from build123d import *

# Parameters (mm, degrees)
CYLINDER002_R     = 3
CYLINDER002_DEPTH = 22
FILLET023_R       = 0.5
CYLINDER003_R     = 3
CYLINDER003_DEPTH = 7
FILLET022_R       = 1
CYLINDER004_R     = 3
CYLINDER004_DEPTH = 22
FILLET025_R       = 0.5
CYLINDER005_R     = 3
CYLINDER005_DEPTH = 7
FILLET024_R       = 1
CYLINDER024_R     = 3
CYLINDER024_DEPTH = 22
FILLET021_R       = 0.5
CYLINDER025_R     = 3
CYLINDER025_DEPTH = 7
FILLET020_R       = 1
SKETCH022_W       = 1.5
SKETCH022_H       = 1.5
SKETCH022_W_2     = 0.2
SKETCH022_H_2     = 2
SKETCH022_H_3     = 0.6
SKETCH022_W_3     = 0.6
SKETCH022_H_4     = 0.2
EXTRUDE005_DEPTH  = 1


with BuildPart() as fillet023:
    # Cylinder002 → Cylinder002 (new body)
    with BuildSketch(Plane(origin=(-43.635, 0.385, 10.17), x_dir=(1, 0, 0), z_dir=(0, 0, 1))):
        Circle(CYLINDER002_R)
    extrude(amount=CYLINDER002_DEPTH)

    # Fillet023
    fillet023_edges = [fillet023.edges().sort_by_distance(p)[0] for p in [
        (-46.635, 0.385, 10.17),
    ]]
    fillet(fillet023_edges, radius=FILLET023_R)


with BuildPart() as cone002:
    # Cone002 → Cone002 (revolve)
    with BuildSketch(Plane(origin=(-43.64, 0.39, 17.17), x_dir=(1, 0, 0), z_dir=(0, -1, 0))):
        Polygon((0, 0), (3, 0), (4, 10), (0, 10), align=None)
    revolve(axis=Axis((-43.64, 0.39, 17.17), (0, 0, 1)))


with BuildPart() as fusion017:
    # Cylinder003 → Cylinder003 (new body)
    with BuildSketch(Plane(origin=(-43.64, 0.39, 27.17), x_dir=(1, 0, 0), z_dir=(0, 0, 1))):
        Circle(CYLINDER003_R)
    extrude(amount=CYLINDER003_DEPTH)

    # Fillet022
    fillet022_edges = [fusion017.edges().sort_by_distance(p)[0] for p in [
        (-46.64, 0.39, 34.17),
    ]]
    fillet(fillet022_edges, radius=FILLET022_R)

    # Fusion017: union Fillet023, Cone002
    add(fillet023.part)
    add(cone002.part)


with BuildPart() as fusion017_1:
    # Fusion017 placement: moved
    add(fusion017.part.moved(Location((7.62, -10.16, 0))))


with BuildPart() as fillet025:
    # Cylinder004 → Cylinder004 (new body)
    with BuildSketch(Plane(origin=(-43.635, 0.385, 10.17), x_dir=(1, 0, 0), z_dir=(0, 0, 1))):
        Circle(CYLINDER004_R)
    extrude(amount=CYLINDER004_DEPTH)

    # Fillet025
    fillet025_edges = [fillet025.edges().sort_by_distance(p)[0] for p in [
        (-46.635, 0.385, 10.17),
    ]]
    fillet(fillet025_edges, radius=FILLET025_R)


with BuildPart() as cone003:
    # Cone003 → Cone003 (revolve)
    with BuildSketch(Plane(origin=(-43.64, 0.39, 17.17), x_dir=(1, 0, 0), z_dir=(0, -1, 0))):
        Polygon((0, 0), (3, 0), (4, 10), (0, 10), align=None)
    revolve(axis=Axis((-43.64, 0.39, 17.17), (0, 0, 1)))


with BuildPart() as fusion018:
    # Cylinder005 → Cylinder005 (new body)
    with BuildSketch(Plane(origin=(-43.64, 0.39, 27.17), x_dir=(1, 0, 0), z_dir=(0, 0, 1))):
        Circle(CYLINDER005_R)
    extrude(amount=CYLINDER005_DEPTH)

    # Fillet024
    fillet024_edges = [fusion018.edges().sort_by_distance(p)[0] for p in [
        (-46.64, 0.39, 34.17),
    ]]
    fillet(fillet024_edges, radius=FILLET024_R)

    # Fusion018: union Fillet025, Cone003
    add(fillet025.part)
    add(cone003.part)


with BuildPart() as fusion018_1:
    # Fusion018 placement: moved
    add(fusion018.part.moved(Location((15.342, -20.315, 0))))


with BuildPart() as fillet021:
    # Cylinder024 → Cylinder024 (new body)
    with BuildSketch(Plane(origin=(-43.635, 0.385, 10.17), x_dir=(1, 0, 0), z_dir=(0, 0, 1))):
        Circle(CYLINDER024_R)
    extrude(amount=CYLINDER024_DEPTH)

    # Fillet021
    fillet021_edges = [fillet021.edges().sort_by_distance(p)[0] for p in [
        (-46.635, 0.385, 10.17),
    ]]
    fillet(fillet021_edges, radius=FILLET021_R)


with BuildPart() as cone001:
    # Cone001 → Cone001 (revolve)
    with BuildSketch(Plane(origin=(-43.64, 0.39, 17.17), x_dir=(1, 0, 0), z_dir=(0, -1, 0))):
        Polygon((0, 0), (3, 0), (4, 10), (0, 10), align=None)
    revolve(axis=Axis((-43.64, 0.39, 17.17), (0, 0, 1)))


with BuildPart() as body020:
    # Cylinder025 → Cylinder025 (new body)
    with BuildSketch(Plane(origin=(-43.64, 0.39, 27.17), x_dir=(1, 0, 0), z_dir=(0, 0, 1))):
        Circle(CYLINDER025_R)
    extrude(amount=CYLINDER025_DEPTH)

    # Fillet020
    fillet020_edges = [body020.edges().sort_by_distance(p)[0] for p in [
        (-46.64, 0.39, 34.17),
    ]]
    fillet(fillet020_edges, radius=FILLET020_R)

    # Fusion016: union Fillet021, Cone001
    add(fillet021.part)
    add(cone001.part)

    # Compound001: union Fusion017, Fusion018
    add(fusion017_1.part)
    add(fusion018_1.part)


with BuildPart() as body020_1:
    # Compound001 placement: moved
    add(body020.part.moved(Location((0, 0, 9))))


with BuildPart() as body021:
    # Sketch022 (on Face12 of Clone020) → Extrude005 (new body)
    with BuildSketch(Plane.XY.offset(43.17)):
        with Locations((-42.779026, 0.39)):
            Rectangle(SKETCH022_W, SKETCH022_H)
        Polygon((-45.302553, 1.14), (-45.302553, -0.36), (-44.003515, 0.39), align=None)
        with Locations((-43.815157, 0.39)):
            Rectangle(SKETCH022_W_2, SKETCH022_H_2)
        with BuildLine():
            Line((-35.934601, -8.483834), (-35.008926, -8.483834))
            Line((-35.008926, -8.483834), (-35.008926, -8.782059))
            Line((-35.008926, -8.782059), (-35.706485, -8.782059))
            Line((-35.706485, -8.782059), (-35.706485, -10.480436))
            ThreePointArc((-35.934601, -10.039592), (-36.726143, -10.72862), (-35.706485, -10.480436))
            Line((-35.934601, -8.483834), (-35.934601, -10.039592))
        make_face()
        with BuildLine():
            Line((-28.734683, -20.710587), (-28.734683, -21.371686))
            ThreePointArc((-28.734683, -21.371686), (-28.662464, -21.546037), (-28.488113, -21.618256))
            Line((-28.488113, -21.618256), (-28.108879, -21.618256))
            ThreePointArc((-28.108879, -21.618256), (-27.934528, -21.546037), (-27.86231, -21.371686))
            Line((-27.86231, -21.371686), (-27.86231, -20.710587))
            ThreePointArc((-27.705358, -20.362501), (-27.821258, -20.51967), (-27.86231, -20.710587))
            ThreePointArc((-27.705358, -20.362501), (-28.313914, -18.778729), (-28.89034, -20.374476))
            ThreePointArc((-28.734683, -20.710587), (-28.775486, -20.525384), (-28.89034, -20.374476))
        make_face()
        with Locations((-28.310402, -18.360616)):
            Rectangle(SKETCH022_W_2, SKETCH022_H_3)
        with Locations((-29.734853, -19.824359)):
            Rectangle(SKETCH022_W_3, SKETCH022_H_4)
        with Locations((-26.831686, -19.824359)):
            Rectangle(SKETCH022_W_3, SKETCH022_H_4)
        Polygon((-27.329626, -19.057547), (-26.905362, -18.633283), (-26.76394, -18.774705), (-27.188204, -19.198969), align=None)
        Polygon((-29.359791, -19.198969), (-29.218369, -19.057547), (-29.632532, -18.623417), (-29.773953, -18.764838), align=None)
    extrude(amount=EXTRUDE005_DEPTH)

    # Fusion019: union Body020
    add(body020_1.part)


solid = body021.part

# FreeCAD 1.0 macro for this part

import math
import FreeCAD as App
import Part
import Sketcher
from FreeCAD import Vector
Q = App.Units.Quantity


def edges_at(feature, points):
    """Names of the edges that pass closest to the given points."""
    edges = feature.Shape.Edges
    near = lambda p: min(range(len(edges)), key=lambda i: edges[i].distToShape(Part.Vertex(*p))[0])
    return sorted({f"Edge{near(p) + 1}" for p in points})

doc = App.newDocument("Part")
body = doc.addObject("PartDesign::Body", "Body")

# Sketch on XY plane
sketch1 = body.newObject("Sketcher::SketchObject", "Sketch")
sketch1.AttachmentSupport = (doc.getObject("XY_Plane"), [""])
sketch1.MapMode = "FlatFace"
sketch1.AttachmentOffset = App.Placement(Vector(0, 0, 10.17), App.Rotation())
sketch1.addGeometry(Part.Circle(Vector(-43.6, 0.4, 0), Vector(0, 0, 1), 3), False)
sketch1.addConstraint(Sketcher.Constraint("Diameter", 0, 6.0))
sketch1.addConstraint(Sketcher.Constraint("DistanceX", 0, 3, -1, 1, 43.635))
sketch1.addConstraint(Sketcher.Constraint("DistanceY", -1, 1, 0, 3, 0.385))
pad1 = body.newObject("PartDesign::Pad", "Pad")
pad1.Profile = sketch1
pad1.Length = 22
doc.recompute()

fillet = body.newObject("PartDesign::Fillet", "Fillet")
fillet.Base = (pad1, edges_at(pad1, [(-46.635, 0.385, 10.17)]))
fillet.Radius = 0.5
body2 = doc.addObject("PartDesign::Body", "Body001")

# Sketch on XZ plane
sketch2 = body2.newObject("Sketcher::SketchObject", "Sketch001")
sketch2.AttachmentSupport = (doc.getObject("XZ_Plane001"), [""])
sketch2.MapMode = "FlatFace"
sketch2.AttachmentOffset = App.Placement(Vector(0, 0, -0.39), App.Rotation())
sketch2.addGeometry(Part.LineSegment(Vector(-43.6, 17.2, 0), Vector(-40.6, 17.2, 0)), False)
sketch2.addGeometry(Part.LineSegment(Vector(-40.6, 17.2, 0), Vector(-39.6, 27.2, 0)), False)
sketch2.addGeometry(Part.LineSegment(Vector(-39.6, 27.2, 0), Vector(-43.6, 27.2, 0)), False)
sketch2.addGeometry(Part.LineSegment(Vector(-43.6, 27.2, 0), Vector(-43.6, 17.2, 0)), False)
sketch2.addGeometry(Part.LineSegment(Vector(-43.6, 17.2, 0), Vector(-43.6, 27.2, 0)), True)  # axis
sketch2.addConstraint(Sketcher.Constraint("Coincident", 0, 2, 1, 1))
sketch2.addConstraint(Sketcher.Constraint("Coincident", 1, 2, 2, 1))
sketch2.addConstraint(Sketcher.Constraint("Coincident", 2, 2, 3, 1))
sketch2.addConstraint(Sketcher.Constraint("Coincident", 3, 2, 0, 1))
sketch2.addConstraint(Sketcher.Constraint("Horizontal", 0))
sketch2.addConstraint(Sketcher.Constraint("Horizontal", 2))
sketch2.addConstraint(Sketcher.Constraint("Vertical", 3))
sketch2.addConstraint(Sketcher.Constraint("Vertical", 4))
sketch2.addConstraint(Sketcher.Constraint("Coincident", 4, 1, 3, 2))
sketch2.addConstraint(Sketcher.Constraint("Horizontal", 1, 2, 4, 2))
sketch2.addConstraint(Sketcher.Constraint("DistanceX", 0, 1, 0, 2, 3.0))
sketch2.addConstraint(Sketcher.Constraint("DistanceX", 2, 2, 2, 1, 4.0))
sketch2.addConstraint(Sketcher.Constraint("DistanceY", 3, 2, 3, 1, 10.0))
sketch2.addConstraint(Sketcher.Constraint("DistanceX", 0, 2, -1, 1, 40.64))
sketch2.addConstraint(Sketcher.Constraint("DistanceY", -1, 1, 0, 2, 17.17))
revolution = body2.newObject("PartDesign::Revolution", "Revolution")
revolution.Profile = sketch2
revolution.ReferenceAxis = (sketch2, ["Axis0"])
revolution.Angle = 360
body3 = doc.addObject("PartDesign::Body", "Body002")

# Sketch on XY plane
sketch3 = body3.newObject("Sketcher::SketchObject", "Sketch002")
sketch3.AttachmentSupport = (doc.getObject("XY_Plane002"), [""])
sketch3.MapMode = "FlatFace"
sketch3.AttachmentOffset = App.Placement(Vector(0, 0, 27.17), App.Rotation())
sketch3.addGeometry(Part.Circle(Vector(-43.6, 0.4, 0), Vector(0, 0, 1), 3), False)
sketch3.addConstraint(Sketcher.Constraint("Diameter", 0, 6.0))
sketch3.addConstraint(Sketcher.Constraint("DistanceX", 0, 3, -1, 1, 43.64))
sketch3.addConstraint(Sketcher.Constraint("DistanceY", -1, 1, 0, 3, 0.39))
pad2 = body3.newObject("PartDesign::Pad", "Pad001")
pad2.Profile = sketch3
pad2.Length = 7
doc.recompute()

fillet2 = body3.newObject("PartDesign::Fillet", "Fillet001")
fillet2.Base = (pad2, edges_at(pad2, [(-46.64, 0.39, 34.17)]))
fillet2.Radius = 1
doc.recompute()

boolean = body3.newObject("PartDesign::Boolean", "Boolean")
boolean.Type = "Fuse"
boolean.addObjects([body])
doc.recompute()

boolean2 = body3.newObject("PartDesign::Boolean", "Boolean001")
boolean2.Type = "Fuse"
boolean2.addObjects([body2])
body4 = doc.addObject("PartDesign::Body", "Body003")
doc.recompute()

body3.Placement = App.Placement(Vector(7.62, -10.16, 0), App.Rotation(Vector(0, 0, 1), 0))
boolean3 = body4.newObject("PartDesign::Boolean", "Boolean002")
boolean3.Type = "Fuse"
boolean3.addObjects([body3])
body5 = doc.addObject("PartDesign::Body", "Body004")

# Sketch on XY plane
sketch4 = body5.newObject("Sketcher::SketchObject", "Sketch003")
sketch4.AttachmentSupport = (doc.getObject("XY_Plane004"), [""])
sketch4.MapMode = "FlatFace"
sketch4.AttachmentOffset = App.Placement(Vector(0, 0, 10.17), App.Rotation())
sketch4.addGeometry(Part.Circle(Vector(-43.6, 0.4, 0), Vector(0, 0, 1), 3), False)
sketch4.addConstraint(Sketcher.Constraint("Diameter", 0, 6.0))
sketch4.addConstraint(Sketcher.Constraint("DistanceX", 0, 3, -1, 1, 43.635))
sketch4.addConstraint(Sketcher.Constraint("DistanceY", -1, 1, 0, 3, 0.385))
pad3 = body5.newObject("PartDesign::Pad", "Pad002")
pad3.Profile = sketch4
pad3.Length = 22
doc.recompute()

fillet3 = body5.newObject("PartDesign::Fillet", "Fillet002")
fillet3.Base = (pad3, edges_at(pad3, [(-46.635, 0.385, 10.17)]))
fillet3.Radius = 0.5
body6 = doc.addObject("PartDesign::Body", "Body005")

# Sketch on XZ plane
sketch5 = body6.newObject("Sketcher::SketchObject", "Sketch004")
sketch5.AttachmentSupport = (doc.getObject("XZ_Plane005"), [""])
sketch5.MapMode = "FlatFace"
sketch5.AttachmentOffset = App.Placement(Vector(0, 0, -0.39), App.Rotation())
sketch5.addGeometry(Part.LineSegment(Vector(-43.6, 17.2, 0), Vector(-40.6, 17.2, 0)), False)
sketch5.addGeometry(Part.LineSegment(Vector(-40.6, 17.2, 0), Vector(-39.6, 27.2, 0)), False)
sketch5.addGeometry(Part.LineSegment(Vector(-39.6, 27.2, 0), Vector(-43.6, 27.2, 0)), False)
sketch5.addGeometry(Part.LineSegment(Vector(-43.6, 27.2, 0), Vector(-43.6, 17.2, 0)), False)
sketch5.addGeometry(Part.LineSegment(Vector(-43.6, 17.2, 0), Vector(-43.6, 27.2, 0)), True)  # axis
sketch5.addConstraint(Sketcher.Constraint("Coincident", 0, 2, 1, 1))
sketch5.addConstraint(Sketcher.Constraint("Coincident", 1, 2, 2, 1))
sketch5.addConstraint(Sketcher.Constraint("Coincident", 2, 2, 3, 1))
sketch5.addConstraint(Sketcher.Constraint("Coincident", 3, 2, 0, 1))
sketch5.addConstraint(Sketcher.Constraint("Horizontal", 0))
sketch5.addConstraint(Sketcher.Constraint("Horizontal", 2))
sketch5.addConstraint(Sketcher.Constraint("Vertical", 3))
sketch5.addConstraint(Sketcher.Constraint("Vertical", 4))
sketch5.addConstraint(Sketcher.Constraint("Coincident", 4, 1, 3, 2))
sketch5.addConstraint(Sketcher.Constraint("Horizontal", 1, 2, 4, 2))
sketch5.addConstraint(Sketcher.Constraint("DistanceX", 0, 1, 0, 2, 3.0))
sketch5.addConstraint(Sketcher.Constraint("DistanceX", 2, 2, 2, 1, 4.0))
sketch5.addConstraint(Sketcher.Constraint("DistanceY", 3, 2, 3, 1, 10.0))
sketch5.addConstraint(Sketcher.Constraint("DistanceX", 0, 2, -1, 1, 40.64))
sketch5.addConstraint(Sketcher.Constraint("DistanceY", -1, 1, 0, 2, 17.17))
revolution2 = body6.newObject("PartDesign::Revolution", "Revolution001")
revolution2.Profile = sketch5
revolution2.ReferenceAxis = (sketch5, ["Axis0"])
revolution2.Angle = 360
body7 = doc.addObject("PartDesign::Body", "Body006")

# Sketch on XY plane
sketch6 = body7.newObject("Sketcher::SketchObject", "Sketch005")
sketch6.AttachmentSupport = (doc.getObject("XY_Plane006"), [""])
sketch6.MapMode = "FlatFace"
sketch6.AttachmentOffset = App.Placement(Vector(0, 0, 27.17), App.Rotation())
sketch6.addGeometry(Part.Circle(Vector(-43.6, 0.4, 0), Vector(0, 0, 1), 3), False)
sketch6.addConstraint(Sketcher.Constraint("Diameter", 0, 6.0))
sketch6.addConstraint(Sketcher.Constraint("DistanceX", 0, 3, -1, 1, 43.64))
sketch6.addConstraint(Sketcher.Constraint("DistanceY", -1, 1, 0, 3, 0.39))
pad4 = body7.newObject("PartDesign::Pad", "Pad003")
pad4.Profile = sketch6
pad4.Length = 7
doc.recompute()

fillet4 = body7.newObject("PartDesign::Fillet", "Fillet003")
fillet4.Base = (pad4, edges_at(pad4, [(-46.64, 0.39, 34.17)]))
fillet4.Radius = 1
doc.recompute()

boolean4 = body7.newObject("PartDesign::Boolean", "Boolean003")
boolean4.Type = "Fuse"
boolean4.addObjects([body5])
doc.recompute()

boolean5 = body7.newObject("PartDesign::Boolean", "Boolean004")
boolean5.Type = "Fuse"
boolean5.addObjects([body6])
body8 = doc.addObject("PartDesign::Body", "Body007")
doc.recompute()

body7.Placement = App.Placement(Vector(15.342, -20.315, 0), App.Rotation(Vector(0, 0, 1), 0))
boolean6 = body8.newObject("PartDesign::Boolean", "Boolean005")
boolean6.Type = "Fuse"
boolean6.addObjects([body7])
body9 = doc.addObject("PartDesign::Body", "Body008")

# Sketch on XY plane
sketch7 = body9.newObject("Sketcher::SketchObject", "Sketch006")
sketch7.AttachmentSupport = (doc.getObject("XY_Plane008"), [""])
sketch7.MapMode = "FlatFace"
sketch7.AttachmentOffset = App.Placement(Vector(0, 0, 10.17), App.Rotation())
sketch7.addGeometry(Part.Circle(Vector(-43.6, 0.4, 0), Vector(0, 0, 1), 3), False)
sketch7.addConstraint(Sketcher.Constraint("Diameter", 0, 6.0))
sketch7.addConstraint(Sketcher.Constraint("DistanceX", 0, 3, -1, 1, 43.635))
sketch7.addConstraint(Sketcher.Constraint("DistanceY", -1, 1, 0, 3, 0.385))
pad5 = body9.newObject("PartDesign::Pad", "Pad004")
pad5.Profile = sketch7
pad5.Length = 22
doc.recompute()

fillet5 = body9.newObject("PartDesign::Fillet", "Fillet004")
fillet5.Base = (pad5, edges_at(pad5, [(-46.635, 0.385, 10.17)]))
fillet5.Radius = 0.5
body10 = doc.addObject("PartDesign::Body", "Body009")

# Sketch on XZ plane
sketch8 = body10.newObject("Sketcher::SketchObject", "Sketch007")
sketch8.AttachmentSupport = (doc.getObject("XZ_Plane009"), [""])
sketch8.MapMode = "FlatFace"
sketch8.AttachmentOffset = App.Placement(Vector(0, 0, -0.39), App.Rotation())
sketch8.addGeometry(Part.LineSegment(Vector(-43.6, 17.2, 0), Vector(-40.6, 17.2, 0)), False)
sketch8.addGeometry(Part.LineSegment(Vector(-40.6, 17.2, 0), Vector(-39.6, 27.2, 0)), False)
sketch8.addGeometry(Part.LineSegment(Vector(-39.6, 27.2, 0), Vector(-43.6, 27.2, 0)), False)
sketch8.addGeometry(Part.LineSegment(Vector(-43.6, 27.2, 0), Vector(-43.6, 17.2, 0)), False)
sketch8.addGeometry(Part.LineSegment(Vector(-43.6, 17.2, 0), Vector(-43.6, 27.2, 0)), True)  # axis
sketch8.addConstraint(Sketcher.Constraint("Coincident", 0, 2, 1, 1))
sketch8.addConstraint(Sketcher.Constraint("Coincident", 1, 2, 2, 1))
sketch8.addConstraint(Sketcher.Constraint("Coincident", 2, 2, 3, 1))
sketch8.addConstraint(Sketcher.Constraint("Coincident", 3, 2, 0, 1))
sketch8.addConstraint(Sketcher.Constraint("Horizontal", 0))
sketch8.addConstraint(Sketcher.Constraint("Horizontal", 2))
sketch8.addConstraint(Sketcher.Constraint("Vertical", 3))
sketch8.addConstraint(Sketcher.Constraint("Vertical", 4))
sketch8.addConstraint(Sketcher.Constraint("Coincident", 4, 1, 3, 2))
sketch8.addConstraint(Sketcher.Constraint("Horizontal", 1, 2, 4, 2))
sketch8.addConstraint(Sketcher.Constraint("DistanceX", 0, 1, 0, 2, 3.0))
sketch8.addConstraint(Sketcher.Constraint("DistanceX", 2, 2, 2, 1, 4.0))
sketch8.addConstraint(Sketcher.Constraint("DistanceY", 3, 2, 3, 1, 10.0))
sketch8.addConstraint(Sketcher.Constraint("DistanceX", 0, 2, -1, 1, 40.64))
sketch8.addConstraint(Sketcher.Constraint("DistanceY", -1, 1, 0, 2, 17.17))
revolution3 = body10.newObject("PartDesign::Revolution", "Revolution002")
revolution3.Profile = sketch8
revolution3.ReferenceAxis = (sketch8, ["Axis0"])
revolution3.Angle = 360
body11 = doc.addObject("PartDesign::Body", "Body010")
body11.AllowCompound = True

# Sketch on XY plane
sketch9 = body11.newObject("Sketcher::SketchObject", "Sketch008")
sketch9.AttachmentSupport = (doc.getObject("XY_Plane010"), [""])
sketch9.MapMode = "FlatFace"
sketch9.AttachmentOffset = App.Placement(Vector(0, 0, 27.17), App.Rotation())
sketch9.addGeometry(Part.Circle(Vector(-43.6, 0.4, 0), Vector(0, 0, 1), 3), False)
sketch9.addConstraint(Sketcher.Constraint("Diameter", 0, 6.0))
sketch9.addConstraint(Sketcher.Constraint("DistanceX", 0, 3, -1, 1, 43.64))
sketch9.addConstraint(Sketcher.Constraint("DistanceY", -1, 1, 0, 3, 0.39))
pad6 = body11.newObject("PartDesign::Pad", "Pad005")
pad6.Profile = sketch9
pad6.Length = 7
doc.recompute()

fillet6 = body11.newObject("PartDesign::Fillet", "Fillet005")
fillet6.Base = (pad6, edges_at(pad6, [(-46.64, 0.39, 34.17)]))
fillet6.Radius = 1
doc.recompute()

boolean7 = body11.newObject("PartDesign::Boolean", "Boolean006")
boolean7.Type = "Fuse"
boolean7.addObjects([body9])
doc.recompute()

boolean8 = body11.newObject("PartDesign::Boolean", "Boolean007")
boolean8.Type = "Fuse"
boolean8.addObjects([body10])
doc.recompute()

boolean9 = body11.newObject("PartDesign::Boolean", "Boolean008")
boolean9.Type = "Fuse"
boolean9.addObjects([body4])
doc.recompute()

boolean10 = body11.newObject("PartDesign::Boolean", "Boolean009")
boolean10.Type = "Fuse"
boolean10.addObjects([body8])
body12 = doc.addObject("PartDesign::Body", "Body011")
body12.AllowCompound = True
doc.recompute()

body11.Placement = App.Placement(Vector(0, 0, 9), App.Rotation(Vector(0, 0, 1), 0))
boolean11 = body12.newObject("PartDesign::Boolean", "Boolean010")
boolean11.Type = "Fuse"
boolean11.addObjects([body11])
body13 = doc.addObject("PartDesign::Body", "Body012")
body13.AllowCompound = True

# Sketch on XY plane
sketch10 = body13.newObject("Sketcher::SketchObject", "Sketch009")
sketch10.AttachmentSupport = (doc.getObject("XY_Plane012"), [""])
sketch10.MapMode = "FlatFace"
sketch10.AttachmentOffset = App.Placement(Vector(0, 0, 43.17), App.Rotation())
sketch10.addGeometry(Part.LineSegment(Vector(-43.53, 1.14, 0), Vector(-43.53, -0.36, 0)), False)
sketch10.addGeometry(Part.LineSegment(Vector(-43.53, -0.36, 0), Vector(-42.03, -0.36, 0)), False)
sketch10.addGeometry(Part.LineSegment(Vector(-42.03, -0.36, 0), Vector(-42.03, 1.14, 0)), False)
sketch10.addGeometry(Part.LineSegment(Vector(-42.03, 1.14, 0), Vector(-43.53, 1.14, 0)), False)
sketch10.addGeometry(Part.LineSegment(Vector(-45.3, 1.14, 0), Vector(-45.3, -0.36, 0)), False)
sketch10.addGeometry(Part.LineSegment(Vector(-45.3, -0.36, 0), Vector(-44, 0.39, 0)), False)
sketch10.addGeometry(Part.LineSegment(Vector(-44, 0.39, 0), Vector(-45.3, 1.14, 0)), False)
sketch10.addGeometry(Part.LineSegment(Vector(-43.92, 1.39, 0), Vector(-43.92, -0.61, 0)), False)
sketch10.addGeometry(Part.LineSegment(Vector(-43.92, -0.61, 0), Vector(-43.72, -0.61, 0)), False)
sketch10.addGeometry(Part.LineSegment(Vector(-43.72, -0.61, 0), Vector(-43.72, 1.39, 0)), False)
sketch10.addGeometry(Part.LineSegment(Vector(-43.72, 1.39, 0), Vector(-43.92, 1.39, 0)), False)
sketch10.addGeometry(Part.LineSegment(Vector(-35.01, -8.48, 0), Vector(-35.93, -8.48, 0)), False)
sketch10.addGeometry(Part.LineSegment(Vector(-35.93, -8.48, 0), Vector(-35.93, -10.04, 0)), False)
sketch10.addGeometry(Part.ArcOfCircle(Part.Circle(Vector(-36.25, -10.48, 0), Vector(0, 0, 1), 0.54), math.radians(55), math.radians(360)), False)
sketch10.addGeometry(Part.LineSegment(Vector(-35.71, -10.48, 0), Vector(-35.71, -8.78, 0)), False)
sketch10.addGeometry(Part.LineSegment(Vector(-35.71, -8.78, 0), Vector(-35.01, -8.78, 0)), False)
sketch10.addGeometry(Part.LineSegment(Vector(-35.01, -8.78, 0), Vector(-35.01, -8.48, 0)), False)
sketch10.addGeometry(Part.LineSegment(Vector(-28.73, -20.71, 0), Vector(-28.73, -21.37, 0)), False)
sketch10.addGeometry(Part.ArcOfCircle(Part.Circle(Vector(-28.49, -21.37, 0), Vector(0, 0, 1), 0.25), math.radians(-180), math.radians(-90)), False)
sketch10.addGeometry(Part.LineSegment(Vector(-28.49, -21.62, 0), Vector(-28.11, -21.62, 0)), False)
sketch10.addGeometry(Part.ArcOfCircle(Part.Circle(Vector(-28.11, -21.37, 0), Vector(0, 0, 1), 0.25), math.radians(-90), math.radians(0)), False)
sketch10.addGeometry(Part.LineSegment(Vector(-27.86, -21.37, 0), Vector(-27.86, -20.71, 0)), False)
sketch10.addGeometry(Part.ArcOfCircle(Part.Circle(Vector(-27.4, -20.71, 0), Vector(0, 0, 1), 0.46), math.radians(131), math.radians(180)), False)
sketch10.addGeometry(Part.ArcOfCircle(Part.Circle(Vector(-28.3, -19.68, 0), Vector(0, 0, 1), 0.91), math.radians(-49), math.radians(230)), False)
sketch10.addGeometry(Part.ArcOfCircle(Part.Circle(Vector(-29.18, -20.71, 0), Vector(0, 0, 1), 0.44), math.radians(0), math.radians(50)), False)
sketch10.addGeometry(Part.LineSegment(Vector(-28.41, -18.06, 0), Vector(-28.41, -18.66, 0)), False)
sketch10.addGeometry(Part.LineSegment(Vector(-28.41, -18.66, 0), Vector(-28.21, -18.66, 0)), False)
sketch10.addGeometry(Part.LineSegment(Vector(-28.21, -18.66, 0), Vector(-28.21, -18.06, 0)), False)
sketch10.addGeometry(Part.LineSegment(Vector(-28.21, -18.06, 0), Vector(-28.41, -18.06, 0)), False)
sketch10.addGeometry(Part.LineSegment(Vector(-30.03, -19.72, 0), Vector(-30.03, -19.92, 0)), False)
sketch10.addGeometry(Part.LineSegment(Vector(-30.03, -19.92, 0), Vector(-29.43, -19.92, 0)), False)
sketch10.addGeometry(Part.LineSegment(Vector(-29.43, -19.92, 0), Vector(-29.43, -19.72, 0)), False)
sketch10.addGeometry(Part.LineSegment(Vector(-29.43, -19.72, 0), Vector(-30.03, -19.72, 0)), False)
sketch10.addGeometry(Part.LineSegment(Vector(-27.13, -19.72, 0), Vector(-27.13, -19.92, 0)), False)
sketch10.addGeometry(Part.LineSegment(Vector(-27.13, -19.92, 0), Vector(-26.53, -19.92, 0)), False)
sketch10.addGeometry(Part.LineSegment(Vector(-26.53, -19.92, 0), Vector(-26.53, -19.72, 0)), False)
sketch10.addGeometry(Part.LineSegment(Vector(-26.53, -19.72, 0), Vector(-27.13, -19.72, 0)), False)
sketch10.addGeometry(Part.LineSegment(Vector(-26.91, -18.63, 0), Vector(-27.33, -19.06, 0)), False)
sketch10.addGeometry(Part.LineSegment(Vector(-27.33, -19.06, 0), Vector(-27.19, -19.2, 0)), False)
sketch10.addGeometry(Part.LineSegment(Vector(-27.19, -19.2, 0), Vector(-26.76, -18.77, 0)), False)
sketch10.addGeometry(Part.LineSegment(Vector(-26.76, -18.77, 0), Vector(-26.91, -18.63, 0)), False)
sketch10.addGeometry(Part.LineSegment(Vector(-29.36, -19.2, 0), Vector(-29.22, -19.06, 0)), False)
sketch10.addGeometry(Part.LineSegment(Vector(-29.22, -19.06, 0), Vector(-29.63, -18.62, 0)), False)
sketch10.addGeometry(Part.LineSegment(Vector(-29.63, -18.62, 0), Vector(-29.77, -18.76, 0)), False)
sketch10.addGeometry(Part.LineSegment(Vector(-29.77, -18.76, 0), Vector(-29.36, -19.2, 0)), False)
sketch10.addConstraint(Sketcher.Constraint("Coincident", 0, 2, 1, 1))
sketch10.addConstraint(Sketcher.Constraint("Coincident", 1, 2, 2, 1))
sketch10.addConstraint(Sketcher.Constraint("Coincident", 2, 2, 3, 1))
sketch10.addConstraint(Sketcher.Constraint("Coincident", 3, 2, 0, 1))
sketch10.addConstraint(Sketcher.Constraint("Coincident", 4, 2, 5, 1))
sketch10.addConstraint(Sketcher.Constraint("Coincident", 5, 2, 6, 1))
sketch10.addConstraint(Sketcher.Constraint("Coincident", 6, 2, 4, 1))
sketch10.addConstraint(Sketcher.Constraint("Coincident", 7, 2, 8, 1))
sketch10.addConstraint(Sketcher.Constraint("Coincident", 8, 2, 9, 1))
sketch10.addConstraint(Sketcher.Constraint("Coincident", 9, 2, 10, 1))
sketch10.addConstraint(Sketcher.Constraint("Coincident", 10, 2, 7, 1))
sketch10.addConstraint(Sketcher.Constraint("Coincident", 11, 2, 12, 1))
sketch10.addConstraint(Sketcher.Constraint("Coincident", 12, 2, 13, 1))
sketch10.addConstraint(Sketcher.Constraint("Tangent", 13, 2, 14, 1))
sketch10.addConstraint(Sketcher.Constraint("Coincident", 14, 2, 15, 1))
sketch10.addConstraint(Sketcher.Constraint("Coincident", 15, 2, 16, 1))
sketch10.addConstraint(Sketcher.Constraint("Coincident", 16, 2, 11, 1))
sketch10.addConstraint(Sketcher.Constraint("Coincident", 17, 2, 18, 1))
sketch10.addConstraint(Sketcher.Constraint("Coincident", 18, 2, 19, 1))
sketch10.addConstraint(Sketcher.Constraint("Tangent", 19, 2, 20, 1))
sketch10.addConstraint(Sketcher.Constraint("Coincident", 20, 2, 21, 1))
sketch10.addConstraint(Sketcher.Constraint("Tangent", 21, 2, 22, 2))
sketch10.addConstraint(Sketcher.Constraint("Coincident", 22, 1, 23, 1))
sketch10.addConstraint(Sketcher.Constraint("Coincident", 23, 2, 24, 2))
sketch10.addConstraint(Sketcher.Constraint("Coincident", 24, 1, 17, 1))
sketch10.addConstraint(Sketcher.Constraint("Coincident", 25, 2, 26, 1))
sketch10.addConstraint(Sketcher.Constraint("Coincident", 26, 2, 27, 1))
sketch10.addConstraint(Sketcher.Constraint("Coincident", 27, 2, 28, 1))
sketch10.addConstraint(Sketcher.Constraint("Coincident", 28, 2, 25, 1))
sketch10.addConstraint(Sketcher.Constraint("Coincident", 29, 2, 30, 1))
sketch10.addConstraint(Sketcher.Constraint("Coincident", 30, 2, 31, 1))
sketch10.addConstraint(Sketcher.Constraint("Coincident", 31, 2, 32, 1))
sketch10.addConstraint(Sketcher.Constraint("Coincident", 32, 2, 29, 1))
sketch10.addConstraint(Sketcher.Constraint("Coincident", 33, 2, 34, 1))
sketch10.addConstraint(Sketcher.Constraint("Coincident", 34, 2, 35, 1))
sketch10.addConstraint(Sketcher.Constraint("Coincident", 35, 2, 36, 1))
sketch10.addConstraint(Sketcher.Constraint("Coincident", 36, 2, 33, 1))
sketch10.addConstraint(Sketcher.Constraint("Coincident", 37, 2, 38, 1))
sketch10.addConstraint(Sketcher.Constraint("Coincident", 38, 2, 39, 1))
sketch10.addConstraint(Sketcher.Constraint("Coincident", 39, 2, 40, 1))
sketch10.addConstraint(Sketcher.Constraint("Coincident", 40, 2, 37, 1))
sketch10.addConstraint(Sketcher.Constraint("Coincident", 41, 2, 42, 1))
sketch10.addConstraint(Sketcher.Constraint("Coincident", 42, 2, 43, 1))
sketch10.addConstraint(Sketcher.Constraint("Coincident", 43, 2, 44, 1))
sketch10.addConstraint(Sketcher.Constraint("Coincident", 44, 2, 41, 1))
sketch10.addConstraint(Sketcher.Constraint("Vertical", 0))
sketch10.addConstraint(Sketcher.Constraint("Horizontal", 1))
sketch10.addConstraint(Sketcher.Constraint("Vertical", 2))
sketch10.addConstraint(Sketcher.Constraint("Horizontal", 3))
sketch10.addConstraint(Sketcher.Constraint("Vertical", 4))
sketch10.addConstraint(Sketcher.Constraint("Vertical", 7))
sketch10.addConstraint(Sketcher.Constraint("Horizontal", 8))
sketch10.addConstraint(Sketcher.Constraint("Vertical", 9))
sketch10.addConstraint(Sketcher.Constraint("Horizontal", 10))
sketch10.addConstraint(Sketcher.Constraint("Horizontal", 11))
sketch10.addConstraint(Sketcher.Constraint("Vertical", 12))
sketch10.addConstraint(Sketcher.Constraint("Vertical", 14))
sketch10.addConstraint(Sketcher.Constraint("Horizontal", 15))
sketch10.addConstraint(Sketcher.Constraint("Vertical", 16))
sketch10.addConstraint(Sketcher.Constraint("Vertical", 17))
sketch10.addConstraint(Sketcher.Constraint("Horizontal", 19))
sketch10.addConstraint(Sketcher.Constraint("Vertical", 21))
sketch10.addConstraint(Sketcher.Constraint("Vertical", 25))
sketch10.addConstraint(Sketcher.Constraint("Horizontal", 26))
sketch10.addConstraint(Sketcher.Constraint("Vertical", 27))
sketch10.addConstraint(Sketcher.Constraint("Horizontal", 28))
sketch10.addConstraint(Sketcher.Constraint("Vertical", 29))
sketch10.addConstraint(Sketcher.Constraint("Horizontal", 30))
sketch10.addConstraint(Sketcher.Constraint("Vertical", 31))
sketch10.addConstraint(Sketcher.Constraint("Horizontal", 32))
sketch10.addConstraint(Sketcher.Constraint("Vertical", 33))
sketch10.addConstraint(Sketcher.Constraint("Horizontal", 34))
sketch10.addConstraint(Sketcher.Constraint("Vertical", 35))
sketch10.addConstraint(Sketcher.Constraint("Horizontal", 36))
sketch10.addConstraint(Sketcher.Constraint("Equal", 18, 20))
sketch10.addConstraint(Sketcher.Constraint("Perpendicular", 37, 38))
sketch10.addConstraint(Sketcher.Constraint("Perpendicular", 38, 39))
sketch10.addConstraint(Sketcher.Constraint("Perpendicular", 39, 40))
sketch10.addConstraint(Sketcher.Constraint("Perpendicular", 40, 41))
sketch10.addConstraint(Sketcher.Constraint("Parallel", 41, 43))
sketch10.addConstraint(Sketcher.Constraint("Horizontal", 22, 3, 24, 3))
sketch10.addConstraint(Sketcher.Constraint("Horizontal", 1, 2, 4, 2))
sketch10.addConstraint(Sketcher.Constraint("Horizontal", 3, 2, 6, 2))
sketch10.addConstraint(Sketcher.Constraint("Horizontal", 20, 3, 17, 2))
sketch10.addConstraint(Sketcher.Constraint("Horizontal", 17, 2, 20, 2))
sketch10.addConstraint(Sketcher.Constraint("Horizontal", 21, 2, 24, 1))
sketch10.addConstraint(Sketcher.Constraint("Horizontal", 30, 2, 33, 2))
sketch10.addConstraint(Sketcher.Constraint("Horizontal", 32, 2, 35, 2))
sketch10.addConstraint(Sketcher.Constraint("Horizontal", 37, 2, 41, 2))
sketch10.addConstraint(Sketcher.Constraint("Horizontal", 38, 2, 44, 2))
sketch10.addConstraint(Sketcher.Constraint("Equal", 10, 26))
sketch10.addConstraint(Sketcher.Constraint("Equal", 32, 34))
sketch10.addConstraint(Sketcher.Constraint("Equal", 3, 0))
sketch10.addConstraint(Sketcher.Constraint("Equal", 36, 25))
sketch10.addConstraint(Sketcher.Constraint("Equal", 28, 29))
sketch10.addConstraint(Sketcher.Constraint("Equal", 5, 6))
sketch10.addConstraint(Sketcher.Constraint("Equal", 40, 41))
sketch10.addConstraint(Sketcher.Constraint("Equal", 39, 42))
sketch10.addConstraint(Sketcher.Constraint("Equal", 41, 43))
sketch10.addConstraint(Sketcher.Constraint("DistanceY", 7, 2, 7, 1, 2.0))
sketch10.addConstraint(Sketcher.Constraint("Angle", 5, Q("30.000002 deg")))
sketch10.addConstraint(Sketcher.Constraint("DistanceX", 1, 1, 1, 2, 1.5))
sketch10.addConstraint(Sketcher.Constraint("DistanceX", 8, 1, 8, 2, 0.2))
sketch10.addConstraint(Sketcher.Constraint("DistanceX", 30, 1, 30, 2, 0.6))
sketch10.addConstraint(Sketcher.Constraint("DistanceY", 7, 2, 5, 2, 1.0))
sketch10.addConstraint(Sketcher.Constraint("Distance", 37, 0.6))
sketch10.addConstraint(Sketcher.Constraint("Distance", 38, 0.200001))
sketch10.addConstraint(Sketcher.Constraint("DistanceY", 0, 2, -1, 1, 0.36))
sketch10.addConstraint(Sketcher.Constraint("Radius", 18, 0.246571))
sketch10.addConstraint(Sketcher.Constraint("Radius", 24, 0.440708))
sketch10.addConstraint(Sketcher.Constraint("DistanceY", 17, 2, 17, 1, 0.661099))
sketch10.addConstraint(Sketcher.Constraint("Radius", 13, 0.540033))
sketch10.addConstraint(Sketcher.Constraint("Radius", 22, 0.464466))
sketch10.addConstraint(Sketcher.Constraint("Radius", 23, 0.905334))
sketch10.addConstraint(Sketcher.Constraint("DistanceX", 15, 1, 15, 2, 0.697559))
sketch10.addConstraint(Sketcher.Constraint("DistanceY", 12, 2, 12, 1, 1.555758))
sketch10.addConstraint(Sketcher.Constraint("DistanceX", 11, 2, -1, 1, 35.934601))
sketch10.addConstraint(Sketcher.Constraint("DistanceY", 22, 1, -1, 1, 20.362501))
sketch10.addConstraint(Sketcher.Constraint("DistanceX", 26, 2, -1, 1, 28.210402))
sketch10.addConstraint(Sketcher.Constraint("DistanceY", 13, 3, 11, 2, 1.996602))
sketch10.addConstraint(Sketcher.Constraint("DistanceX", 18, 3, 20, 2, 0.625802))
sketch10.addConstraint(Sketcher.Constraint("DistanceY", 23, 3, 25, 2, 1.023401))
sketch10.addConstraint(Sketcher.Constraint("DistanceY", 25, 2, 42, 2, 0.037199))
sketch10.addConstraint(Sketcher.Constraint("DistanceX", 32, 2, 43, 2, 0.2609))
sketch10.addConstraint(Sketcher.Constraint("DistanceX", 19, 1, 19, 2, 0.379234))
sketch10.addConstraint(Sketcher.Constraint("DistanceY", 14, 1, 14, 2, 1.698377))
sketch10.addConstraint(Sketcher.Constraint("DistanceX", 18, 3, -1, 1, 28.488112))
sketch10.addConstraint(Sketcher.Constraint("DistanceY", 14, 2, -1, 1, 8.782059))
sketch10.addConstraint(Sketcher.Constraint("DistanceX", 23, 2, -1, 1, 28.89034))
sketch10.addConstraint(Sketcher.Constraint("DistanceY", 29, 2, -1, 1, 19.924359))
sketch10.addConstraint(Sketcher.Constraint("DistanceY", 38, 2, -1, 1, 19.198969))
sketch10.addConstraint(Sketcher.Constraint("DistanceX", 39, 2, -1, 1, 26.76394))
sketch10.addConstraint(Sketcher.Constraint("DistanceX", 41, 2, -1, 1, 29.218369))
sketch10.addConstraint(Sketcher.Constraint("DistanceY", 43, 2, -1, 1, 18.764838))
sketch10.addConstraint(Sketcher.Constraint("DistanceX", 0, 2, 13, 3, 7.282508))
sketch10.addConstraint(Sketcher.Constraint("DistanceX", 5, 2, 3, 2, 0.474489))
sketch10.addConstraint(Sketcher.Constraint("DistanceX", 7, 2, 0, 2, 0.386131))
sketch10.addConstraint(Sketcher.Constraint("DistanceX", 22, 1, 33, 2, 0.573672))
pad7 = body13.newObject("PartDesign::Pad", "Pad006")
pad7.Profile = sketch10
pad7.Length = 1
doc.recompute()

boolean12 = body13.newObject("PartDesign::Boolean", "Boolean011")
boolean12.Type = "Fuse"
boolean12.addObjects([body12])

doc.recompute()
